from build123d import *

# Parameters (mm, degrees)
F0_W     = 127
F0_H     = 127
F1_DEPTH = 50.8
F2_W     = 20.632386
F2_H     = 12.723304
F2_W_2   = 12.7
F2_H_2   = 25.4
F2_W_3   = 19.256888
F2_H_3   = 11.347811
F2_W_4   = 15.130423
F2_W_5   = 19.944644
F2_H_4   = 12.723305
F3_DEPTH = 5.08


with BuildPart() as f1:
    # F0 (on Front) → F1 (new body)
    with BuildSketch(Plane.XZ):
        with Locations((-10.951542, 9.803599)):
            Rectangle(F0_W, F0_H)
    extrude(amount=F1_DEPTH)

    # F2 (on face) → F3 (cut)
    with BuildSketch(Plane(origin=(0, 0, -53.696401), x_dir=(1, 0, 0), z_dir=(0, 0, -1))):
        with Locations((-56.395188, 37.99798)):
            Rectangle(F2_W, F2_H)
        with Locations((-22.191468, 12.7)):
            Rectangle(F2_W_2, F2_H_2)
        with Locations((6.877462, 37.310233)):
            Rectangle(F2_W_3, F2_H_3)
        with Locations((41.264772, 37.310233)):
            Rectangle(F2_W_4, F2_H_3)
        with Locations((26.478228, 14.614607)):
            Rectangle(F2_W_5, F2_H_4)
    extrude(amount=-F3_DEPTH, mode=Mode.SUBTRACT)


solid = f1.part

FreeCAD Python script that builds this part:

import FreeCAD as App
import Part
import Sketcher
from FreeCAD import Vector
Q = App.Units.Quantity

doc = App.newDocument("Part")
body = doc.addObject("PartDesign::Body", "Body")

# Sketch on XZ plane
sketch1 = body.newObject("Sketcher::SketchObject", "Sketch")
sketch1.AttachmentSupport = (doc.getObject("XZ_Plane"), [""])
sketch1.MapMode = "FlatFace"
sketch1.addGeometry([
    Part.LineSegment(Vector(-74, 73, 0), Vector(-74, -54, 0)),
    Part.LineSegment(Vector(-74, -54, 0), Vector(53, -54, 0)),
    Part.LineSegment(Vector(53, -54, 0), Vector(53, 73, 0)),
    Part.LineSegment(Vector(53, 73, 0), Vector(-74, 73, 0)),
], False)
sketch1.addConstraint([
    Sketcher.Constraint("Coincident", 0, 2, 1, 1),
    Sketcher.Constraint("Coincident", 1, 2, 2, 1),
    Sketcher.Constraint("Coincident", 2, 2, 3, 1),
    Sketcher.Constraint("Coincident", 3, 2, 0, 1),
    Sketcher.Constraint("Vertical", 0),
    Sketcher.Constraint("Horizontal", 1),
    Sketcher.Constraint("Vertical", 2),
    Sketcher.Constraint("Horizontal", 3),
    Sketcher.Constraint("Equal", 3, 0),
    Sketcher.Constraint("DistanceX", 1, 1, 1, 2, Q("5 in")),
    Sketcher.Constraint("DistanceY", 0, 2, -1, 1, Q("53.696401 mm")),
    Sketcher.Constraint("DistanceX", 0, 2, -1, 1, Q("74.451542 mm")),
])
pad1 = body.newObject("PartDesign::Pad", "Pad")
pad1.Profile = sketch1
pad1.Length = Q("2 in")

# Sketch on XY plane
sketch2 = body.newObject("Sketcher::SketchObject", "Sketch001")
sketch2.AttachmentSupport = (doc.getObject("XY_Plane"), [""])
sketch2.MapMode = "FlatFace"
sketch2.AttachmentOffset = App.Placement(Vector(0, 0, -53.696401), App.Rotation())
sketch2.addGeometry([
    Part.LineSegment(Vector(-67, -44, 0), Vector(-67, -32, 0)),  # 0
    Part.LineSegment(Vector(-67, -32, 0), Vector(-46, -32, 0)),  # 1
    Part.LineSegment(Vector(-46, -32, 0), Vector(-46, -44, 0)),  # 2
    Part.LineSegment(Vector(-46, -44, 0), Vector(-67, -44, 0)),  # 3
    Part.LineSegment(Vector(-29, -25, 0), Vector(-29, 0, 0)),  # 4
    Part.LineSegment(Vector(-29, 0, 0), Vector(-16, 0, 0)),  # 5
    Part.LineSegment(Vector(-16, 0, 0), Vector(-16, -25, 0)),  # 6
    Part.LineSegment(Vector(-16, -25, 0), Vector(-29, -25, 0)),  # 7
    Part.LineSegment(Vector(-3, -43, 0), Vector(-3, -32, 0)),  # 8
    Part.LineSegment(Vector(-3, -32, 0), Vector(17, -32, 0)),  # 9
    Part.LineSegment(Vector(17, -32, 0), Vector(17, -43, 0)),  # 10
    Part.LineSegment(Vector(17, -43, 0), Vector(-3, -43, 0)),  # 11
    Part.LineSegment(Vector(34, -43, 0), Vector(34, -32, 0)),  # 12
    Part.LineSegment(Vector(34, -32, 0), Vector(49, -32, 0)),  # 13
    Part.LineSegment(Vector(49, -32, 0), Vector(49, -43, 0)),  # 14
    Part.LineSegment(Vector(49, -43, 0), Vector(34, -43, 0)),  # 15
    Part.LineSegment(Vector(17, -21, 0), Vector(17, -8, 0)),  # 16
    Part.LineSegment(Vector(17, -8, 0), Vector(36, -8, 0)),  # 17
    Part.LineSegment(Vector(36, -8, 0), Vector(36, -21, 0)),  # 18
    Part.LineSegment(Vector(36, -21, 0), Vector(17, -21, 0)),  # 19
], False)
sketch2.addConstraint([
    Sketcher.Constraint("Coincident", 0, 2, 1, 1),
    Sketcher.Constraint("Coincident", 1, 2, 2, 1),
    Sketcher.Constraint("Coincident", 2, 2, 3, 1),
    Sketcher.Constraint("Coincident", 3, 2, 0, 1),
    Sketcher.Constraint("Coincident", 4, 2, 5, 1),
    Sketcher.Constraint("Coincident", 5, 2, 6, 1),
    Sketcher.Constraint("Coincident", 6, 2, 7, 1),
    Sketcher.Constraint("Coincident", 7, 2, 4, 1),
    Sketcher.Constraint("Coincident", 8, 2, 9, 1),
    Sketcher.Constraint("Coincident", 9, 2, 10, 1),
    Sketcher.Constraint("Coincident", 10, 2, 11, 1),
    Sketcher.Constraint("Coincident", 11, 2, 8, 1),
    Sketcher.Constraint("Coincident", 12, 2, 13, 1),
    Sketcher.Constraint("Coincident", 13, 2, 14, 1),
    Sketcher.Constraint("Coincident", 14, 2, 15, 1),
    Sketcher.Constraint("Coincident", 15, 2, 12, 1),
    Sketcher.Constraint("Coincident", 16, 2, 17, 1),
    Sketcher.Constraint("Coincident", 17, 2, 18, 1),
    Sketcher.Constraint("Coincident", 18, 2, 19, 1),
    Sketcher.Constraint("Coincident", 19, 2, 16, 1),
    Sketcher.Constraint("Vertical", 0),
    Sketcher.Constraint("Horizontal", 1),
    Sketcher.Constraint("Vertical", 2),
    Sketcher.Constraint("Horizontal", 3),
    Sketcher.Constraint("Vertical", 4),
    Sketcher.Constraint("Horizontal", 5),
    Sketcher.Constraint("Vertical", 6),
    Sketcher.Constraint("Horizontal", 7),
    Sketcher.Constraint("Vertical", 8),
    Sketcher.Constraint("Horizontal", 9),
    Sketcher.Constraint("Vertical", 10),
    Sketcher.Constraint("Horizontal", 11),
    Sketcher.Constraint("Vertical", 12),
    Sketcher.Constraint("Horizontal", 13),
    Sketcher.Constraint("Vertical", 14),
    Sketcher.Constraint("Horizontal", 15),
    Sketcher.Constraint("Vertical", 16),
    Sketcher.Constraint("Horizontal", 17),
    Sketcher.Constraint("Vertical", 18),
    Sketcher.Constraint("Horizontal", 19),
    Sketcher.Constraint("PointOnObject", 4, 2, -1),
    Sketcher.Constraint("Horizontal", 1, 2, 8, 2),
    Sketcher.Constraint("Horizontal", 9, 2, 12, 2),
    Sketcher.Constraint("Horizontal", 11, 2, 14, 2),
    Sketcher.Constraint("Vertical", 10, 2, 16, 2),
    Sketcher.Constraint("Equal", 2, 16),
    Sketcher.Constraint("DistanceY", 4, 1, 4, 2, Q("1 in")),
    Sketcher.Constraint("DistanceX", 5, 1, 5, 2, Q("0.5 in")),
    Sketcher.Constraint("DistanceX", 9, 1, 9, 2, Q("19.256888 mm")),
    Sketcher.Constraint("DistanceY", 8, 1, 8, 2, Q("11.347811 mm")),
    Sketcher.Constraint("DistanceX", 1, 1, 1, 2, Q("20.632386 mm")),
    Sketcher.Constraint("DistanceX", 13, 1, 13, 2, Q("15.130423 mm")),
    Sketcher.Constraint("DistanceX", 17, 1, 17, 2, Q("19.944644 mm")),
    Sketcher.Constraint("DistanceY", 0, 1, 0, 2, Q("12.723304 mm")),
    Sketcher.Constraint("DistanceX", 0, 2, -1, 1, Q("66.711381 mm")),
    Sketcher.Constraint("DistanceY", 2, 2, -1, 1, Q("44.359632 mm")),
    Sketcher.Constraint("DistanceX", 5, 2, -1, 1, Q("15.841468 mm")),
    Sketcher.Constraint("DistanceX", 8, 2, -1, 1, Q("2.750982 mm")),
    Sketcher.Constraint("DistanceX", -1, 1, 12, 2, Q("33.69956 mm")),
    Sketcher.Constraint("DistanceY", 18, 2, -1, 1, Q("20.97626 mm")),
])
pocket1 = body.newObject("PartDesign::Pocket", "Pocket")
pocket1.Profile = sketch2
pocket1.Length = Q("0.2 in")
pocket1.Reversed = True

doc.recompute()
